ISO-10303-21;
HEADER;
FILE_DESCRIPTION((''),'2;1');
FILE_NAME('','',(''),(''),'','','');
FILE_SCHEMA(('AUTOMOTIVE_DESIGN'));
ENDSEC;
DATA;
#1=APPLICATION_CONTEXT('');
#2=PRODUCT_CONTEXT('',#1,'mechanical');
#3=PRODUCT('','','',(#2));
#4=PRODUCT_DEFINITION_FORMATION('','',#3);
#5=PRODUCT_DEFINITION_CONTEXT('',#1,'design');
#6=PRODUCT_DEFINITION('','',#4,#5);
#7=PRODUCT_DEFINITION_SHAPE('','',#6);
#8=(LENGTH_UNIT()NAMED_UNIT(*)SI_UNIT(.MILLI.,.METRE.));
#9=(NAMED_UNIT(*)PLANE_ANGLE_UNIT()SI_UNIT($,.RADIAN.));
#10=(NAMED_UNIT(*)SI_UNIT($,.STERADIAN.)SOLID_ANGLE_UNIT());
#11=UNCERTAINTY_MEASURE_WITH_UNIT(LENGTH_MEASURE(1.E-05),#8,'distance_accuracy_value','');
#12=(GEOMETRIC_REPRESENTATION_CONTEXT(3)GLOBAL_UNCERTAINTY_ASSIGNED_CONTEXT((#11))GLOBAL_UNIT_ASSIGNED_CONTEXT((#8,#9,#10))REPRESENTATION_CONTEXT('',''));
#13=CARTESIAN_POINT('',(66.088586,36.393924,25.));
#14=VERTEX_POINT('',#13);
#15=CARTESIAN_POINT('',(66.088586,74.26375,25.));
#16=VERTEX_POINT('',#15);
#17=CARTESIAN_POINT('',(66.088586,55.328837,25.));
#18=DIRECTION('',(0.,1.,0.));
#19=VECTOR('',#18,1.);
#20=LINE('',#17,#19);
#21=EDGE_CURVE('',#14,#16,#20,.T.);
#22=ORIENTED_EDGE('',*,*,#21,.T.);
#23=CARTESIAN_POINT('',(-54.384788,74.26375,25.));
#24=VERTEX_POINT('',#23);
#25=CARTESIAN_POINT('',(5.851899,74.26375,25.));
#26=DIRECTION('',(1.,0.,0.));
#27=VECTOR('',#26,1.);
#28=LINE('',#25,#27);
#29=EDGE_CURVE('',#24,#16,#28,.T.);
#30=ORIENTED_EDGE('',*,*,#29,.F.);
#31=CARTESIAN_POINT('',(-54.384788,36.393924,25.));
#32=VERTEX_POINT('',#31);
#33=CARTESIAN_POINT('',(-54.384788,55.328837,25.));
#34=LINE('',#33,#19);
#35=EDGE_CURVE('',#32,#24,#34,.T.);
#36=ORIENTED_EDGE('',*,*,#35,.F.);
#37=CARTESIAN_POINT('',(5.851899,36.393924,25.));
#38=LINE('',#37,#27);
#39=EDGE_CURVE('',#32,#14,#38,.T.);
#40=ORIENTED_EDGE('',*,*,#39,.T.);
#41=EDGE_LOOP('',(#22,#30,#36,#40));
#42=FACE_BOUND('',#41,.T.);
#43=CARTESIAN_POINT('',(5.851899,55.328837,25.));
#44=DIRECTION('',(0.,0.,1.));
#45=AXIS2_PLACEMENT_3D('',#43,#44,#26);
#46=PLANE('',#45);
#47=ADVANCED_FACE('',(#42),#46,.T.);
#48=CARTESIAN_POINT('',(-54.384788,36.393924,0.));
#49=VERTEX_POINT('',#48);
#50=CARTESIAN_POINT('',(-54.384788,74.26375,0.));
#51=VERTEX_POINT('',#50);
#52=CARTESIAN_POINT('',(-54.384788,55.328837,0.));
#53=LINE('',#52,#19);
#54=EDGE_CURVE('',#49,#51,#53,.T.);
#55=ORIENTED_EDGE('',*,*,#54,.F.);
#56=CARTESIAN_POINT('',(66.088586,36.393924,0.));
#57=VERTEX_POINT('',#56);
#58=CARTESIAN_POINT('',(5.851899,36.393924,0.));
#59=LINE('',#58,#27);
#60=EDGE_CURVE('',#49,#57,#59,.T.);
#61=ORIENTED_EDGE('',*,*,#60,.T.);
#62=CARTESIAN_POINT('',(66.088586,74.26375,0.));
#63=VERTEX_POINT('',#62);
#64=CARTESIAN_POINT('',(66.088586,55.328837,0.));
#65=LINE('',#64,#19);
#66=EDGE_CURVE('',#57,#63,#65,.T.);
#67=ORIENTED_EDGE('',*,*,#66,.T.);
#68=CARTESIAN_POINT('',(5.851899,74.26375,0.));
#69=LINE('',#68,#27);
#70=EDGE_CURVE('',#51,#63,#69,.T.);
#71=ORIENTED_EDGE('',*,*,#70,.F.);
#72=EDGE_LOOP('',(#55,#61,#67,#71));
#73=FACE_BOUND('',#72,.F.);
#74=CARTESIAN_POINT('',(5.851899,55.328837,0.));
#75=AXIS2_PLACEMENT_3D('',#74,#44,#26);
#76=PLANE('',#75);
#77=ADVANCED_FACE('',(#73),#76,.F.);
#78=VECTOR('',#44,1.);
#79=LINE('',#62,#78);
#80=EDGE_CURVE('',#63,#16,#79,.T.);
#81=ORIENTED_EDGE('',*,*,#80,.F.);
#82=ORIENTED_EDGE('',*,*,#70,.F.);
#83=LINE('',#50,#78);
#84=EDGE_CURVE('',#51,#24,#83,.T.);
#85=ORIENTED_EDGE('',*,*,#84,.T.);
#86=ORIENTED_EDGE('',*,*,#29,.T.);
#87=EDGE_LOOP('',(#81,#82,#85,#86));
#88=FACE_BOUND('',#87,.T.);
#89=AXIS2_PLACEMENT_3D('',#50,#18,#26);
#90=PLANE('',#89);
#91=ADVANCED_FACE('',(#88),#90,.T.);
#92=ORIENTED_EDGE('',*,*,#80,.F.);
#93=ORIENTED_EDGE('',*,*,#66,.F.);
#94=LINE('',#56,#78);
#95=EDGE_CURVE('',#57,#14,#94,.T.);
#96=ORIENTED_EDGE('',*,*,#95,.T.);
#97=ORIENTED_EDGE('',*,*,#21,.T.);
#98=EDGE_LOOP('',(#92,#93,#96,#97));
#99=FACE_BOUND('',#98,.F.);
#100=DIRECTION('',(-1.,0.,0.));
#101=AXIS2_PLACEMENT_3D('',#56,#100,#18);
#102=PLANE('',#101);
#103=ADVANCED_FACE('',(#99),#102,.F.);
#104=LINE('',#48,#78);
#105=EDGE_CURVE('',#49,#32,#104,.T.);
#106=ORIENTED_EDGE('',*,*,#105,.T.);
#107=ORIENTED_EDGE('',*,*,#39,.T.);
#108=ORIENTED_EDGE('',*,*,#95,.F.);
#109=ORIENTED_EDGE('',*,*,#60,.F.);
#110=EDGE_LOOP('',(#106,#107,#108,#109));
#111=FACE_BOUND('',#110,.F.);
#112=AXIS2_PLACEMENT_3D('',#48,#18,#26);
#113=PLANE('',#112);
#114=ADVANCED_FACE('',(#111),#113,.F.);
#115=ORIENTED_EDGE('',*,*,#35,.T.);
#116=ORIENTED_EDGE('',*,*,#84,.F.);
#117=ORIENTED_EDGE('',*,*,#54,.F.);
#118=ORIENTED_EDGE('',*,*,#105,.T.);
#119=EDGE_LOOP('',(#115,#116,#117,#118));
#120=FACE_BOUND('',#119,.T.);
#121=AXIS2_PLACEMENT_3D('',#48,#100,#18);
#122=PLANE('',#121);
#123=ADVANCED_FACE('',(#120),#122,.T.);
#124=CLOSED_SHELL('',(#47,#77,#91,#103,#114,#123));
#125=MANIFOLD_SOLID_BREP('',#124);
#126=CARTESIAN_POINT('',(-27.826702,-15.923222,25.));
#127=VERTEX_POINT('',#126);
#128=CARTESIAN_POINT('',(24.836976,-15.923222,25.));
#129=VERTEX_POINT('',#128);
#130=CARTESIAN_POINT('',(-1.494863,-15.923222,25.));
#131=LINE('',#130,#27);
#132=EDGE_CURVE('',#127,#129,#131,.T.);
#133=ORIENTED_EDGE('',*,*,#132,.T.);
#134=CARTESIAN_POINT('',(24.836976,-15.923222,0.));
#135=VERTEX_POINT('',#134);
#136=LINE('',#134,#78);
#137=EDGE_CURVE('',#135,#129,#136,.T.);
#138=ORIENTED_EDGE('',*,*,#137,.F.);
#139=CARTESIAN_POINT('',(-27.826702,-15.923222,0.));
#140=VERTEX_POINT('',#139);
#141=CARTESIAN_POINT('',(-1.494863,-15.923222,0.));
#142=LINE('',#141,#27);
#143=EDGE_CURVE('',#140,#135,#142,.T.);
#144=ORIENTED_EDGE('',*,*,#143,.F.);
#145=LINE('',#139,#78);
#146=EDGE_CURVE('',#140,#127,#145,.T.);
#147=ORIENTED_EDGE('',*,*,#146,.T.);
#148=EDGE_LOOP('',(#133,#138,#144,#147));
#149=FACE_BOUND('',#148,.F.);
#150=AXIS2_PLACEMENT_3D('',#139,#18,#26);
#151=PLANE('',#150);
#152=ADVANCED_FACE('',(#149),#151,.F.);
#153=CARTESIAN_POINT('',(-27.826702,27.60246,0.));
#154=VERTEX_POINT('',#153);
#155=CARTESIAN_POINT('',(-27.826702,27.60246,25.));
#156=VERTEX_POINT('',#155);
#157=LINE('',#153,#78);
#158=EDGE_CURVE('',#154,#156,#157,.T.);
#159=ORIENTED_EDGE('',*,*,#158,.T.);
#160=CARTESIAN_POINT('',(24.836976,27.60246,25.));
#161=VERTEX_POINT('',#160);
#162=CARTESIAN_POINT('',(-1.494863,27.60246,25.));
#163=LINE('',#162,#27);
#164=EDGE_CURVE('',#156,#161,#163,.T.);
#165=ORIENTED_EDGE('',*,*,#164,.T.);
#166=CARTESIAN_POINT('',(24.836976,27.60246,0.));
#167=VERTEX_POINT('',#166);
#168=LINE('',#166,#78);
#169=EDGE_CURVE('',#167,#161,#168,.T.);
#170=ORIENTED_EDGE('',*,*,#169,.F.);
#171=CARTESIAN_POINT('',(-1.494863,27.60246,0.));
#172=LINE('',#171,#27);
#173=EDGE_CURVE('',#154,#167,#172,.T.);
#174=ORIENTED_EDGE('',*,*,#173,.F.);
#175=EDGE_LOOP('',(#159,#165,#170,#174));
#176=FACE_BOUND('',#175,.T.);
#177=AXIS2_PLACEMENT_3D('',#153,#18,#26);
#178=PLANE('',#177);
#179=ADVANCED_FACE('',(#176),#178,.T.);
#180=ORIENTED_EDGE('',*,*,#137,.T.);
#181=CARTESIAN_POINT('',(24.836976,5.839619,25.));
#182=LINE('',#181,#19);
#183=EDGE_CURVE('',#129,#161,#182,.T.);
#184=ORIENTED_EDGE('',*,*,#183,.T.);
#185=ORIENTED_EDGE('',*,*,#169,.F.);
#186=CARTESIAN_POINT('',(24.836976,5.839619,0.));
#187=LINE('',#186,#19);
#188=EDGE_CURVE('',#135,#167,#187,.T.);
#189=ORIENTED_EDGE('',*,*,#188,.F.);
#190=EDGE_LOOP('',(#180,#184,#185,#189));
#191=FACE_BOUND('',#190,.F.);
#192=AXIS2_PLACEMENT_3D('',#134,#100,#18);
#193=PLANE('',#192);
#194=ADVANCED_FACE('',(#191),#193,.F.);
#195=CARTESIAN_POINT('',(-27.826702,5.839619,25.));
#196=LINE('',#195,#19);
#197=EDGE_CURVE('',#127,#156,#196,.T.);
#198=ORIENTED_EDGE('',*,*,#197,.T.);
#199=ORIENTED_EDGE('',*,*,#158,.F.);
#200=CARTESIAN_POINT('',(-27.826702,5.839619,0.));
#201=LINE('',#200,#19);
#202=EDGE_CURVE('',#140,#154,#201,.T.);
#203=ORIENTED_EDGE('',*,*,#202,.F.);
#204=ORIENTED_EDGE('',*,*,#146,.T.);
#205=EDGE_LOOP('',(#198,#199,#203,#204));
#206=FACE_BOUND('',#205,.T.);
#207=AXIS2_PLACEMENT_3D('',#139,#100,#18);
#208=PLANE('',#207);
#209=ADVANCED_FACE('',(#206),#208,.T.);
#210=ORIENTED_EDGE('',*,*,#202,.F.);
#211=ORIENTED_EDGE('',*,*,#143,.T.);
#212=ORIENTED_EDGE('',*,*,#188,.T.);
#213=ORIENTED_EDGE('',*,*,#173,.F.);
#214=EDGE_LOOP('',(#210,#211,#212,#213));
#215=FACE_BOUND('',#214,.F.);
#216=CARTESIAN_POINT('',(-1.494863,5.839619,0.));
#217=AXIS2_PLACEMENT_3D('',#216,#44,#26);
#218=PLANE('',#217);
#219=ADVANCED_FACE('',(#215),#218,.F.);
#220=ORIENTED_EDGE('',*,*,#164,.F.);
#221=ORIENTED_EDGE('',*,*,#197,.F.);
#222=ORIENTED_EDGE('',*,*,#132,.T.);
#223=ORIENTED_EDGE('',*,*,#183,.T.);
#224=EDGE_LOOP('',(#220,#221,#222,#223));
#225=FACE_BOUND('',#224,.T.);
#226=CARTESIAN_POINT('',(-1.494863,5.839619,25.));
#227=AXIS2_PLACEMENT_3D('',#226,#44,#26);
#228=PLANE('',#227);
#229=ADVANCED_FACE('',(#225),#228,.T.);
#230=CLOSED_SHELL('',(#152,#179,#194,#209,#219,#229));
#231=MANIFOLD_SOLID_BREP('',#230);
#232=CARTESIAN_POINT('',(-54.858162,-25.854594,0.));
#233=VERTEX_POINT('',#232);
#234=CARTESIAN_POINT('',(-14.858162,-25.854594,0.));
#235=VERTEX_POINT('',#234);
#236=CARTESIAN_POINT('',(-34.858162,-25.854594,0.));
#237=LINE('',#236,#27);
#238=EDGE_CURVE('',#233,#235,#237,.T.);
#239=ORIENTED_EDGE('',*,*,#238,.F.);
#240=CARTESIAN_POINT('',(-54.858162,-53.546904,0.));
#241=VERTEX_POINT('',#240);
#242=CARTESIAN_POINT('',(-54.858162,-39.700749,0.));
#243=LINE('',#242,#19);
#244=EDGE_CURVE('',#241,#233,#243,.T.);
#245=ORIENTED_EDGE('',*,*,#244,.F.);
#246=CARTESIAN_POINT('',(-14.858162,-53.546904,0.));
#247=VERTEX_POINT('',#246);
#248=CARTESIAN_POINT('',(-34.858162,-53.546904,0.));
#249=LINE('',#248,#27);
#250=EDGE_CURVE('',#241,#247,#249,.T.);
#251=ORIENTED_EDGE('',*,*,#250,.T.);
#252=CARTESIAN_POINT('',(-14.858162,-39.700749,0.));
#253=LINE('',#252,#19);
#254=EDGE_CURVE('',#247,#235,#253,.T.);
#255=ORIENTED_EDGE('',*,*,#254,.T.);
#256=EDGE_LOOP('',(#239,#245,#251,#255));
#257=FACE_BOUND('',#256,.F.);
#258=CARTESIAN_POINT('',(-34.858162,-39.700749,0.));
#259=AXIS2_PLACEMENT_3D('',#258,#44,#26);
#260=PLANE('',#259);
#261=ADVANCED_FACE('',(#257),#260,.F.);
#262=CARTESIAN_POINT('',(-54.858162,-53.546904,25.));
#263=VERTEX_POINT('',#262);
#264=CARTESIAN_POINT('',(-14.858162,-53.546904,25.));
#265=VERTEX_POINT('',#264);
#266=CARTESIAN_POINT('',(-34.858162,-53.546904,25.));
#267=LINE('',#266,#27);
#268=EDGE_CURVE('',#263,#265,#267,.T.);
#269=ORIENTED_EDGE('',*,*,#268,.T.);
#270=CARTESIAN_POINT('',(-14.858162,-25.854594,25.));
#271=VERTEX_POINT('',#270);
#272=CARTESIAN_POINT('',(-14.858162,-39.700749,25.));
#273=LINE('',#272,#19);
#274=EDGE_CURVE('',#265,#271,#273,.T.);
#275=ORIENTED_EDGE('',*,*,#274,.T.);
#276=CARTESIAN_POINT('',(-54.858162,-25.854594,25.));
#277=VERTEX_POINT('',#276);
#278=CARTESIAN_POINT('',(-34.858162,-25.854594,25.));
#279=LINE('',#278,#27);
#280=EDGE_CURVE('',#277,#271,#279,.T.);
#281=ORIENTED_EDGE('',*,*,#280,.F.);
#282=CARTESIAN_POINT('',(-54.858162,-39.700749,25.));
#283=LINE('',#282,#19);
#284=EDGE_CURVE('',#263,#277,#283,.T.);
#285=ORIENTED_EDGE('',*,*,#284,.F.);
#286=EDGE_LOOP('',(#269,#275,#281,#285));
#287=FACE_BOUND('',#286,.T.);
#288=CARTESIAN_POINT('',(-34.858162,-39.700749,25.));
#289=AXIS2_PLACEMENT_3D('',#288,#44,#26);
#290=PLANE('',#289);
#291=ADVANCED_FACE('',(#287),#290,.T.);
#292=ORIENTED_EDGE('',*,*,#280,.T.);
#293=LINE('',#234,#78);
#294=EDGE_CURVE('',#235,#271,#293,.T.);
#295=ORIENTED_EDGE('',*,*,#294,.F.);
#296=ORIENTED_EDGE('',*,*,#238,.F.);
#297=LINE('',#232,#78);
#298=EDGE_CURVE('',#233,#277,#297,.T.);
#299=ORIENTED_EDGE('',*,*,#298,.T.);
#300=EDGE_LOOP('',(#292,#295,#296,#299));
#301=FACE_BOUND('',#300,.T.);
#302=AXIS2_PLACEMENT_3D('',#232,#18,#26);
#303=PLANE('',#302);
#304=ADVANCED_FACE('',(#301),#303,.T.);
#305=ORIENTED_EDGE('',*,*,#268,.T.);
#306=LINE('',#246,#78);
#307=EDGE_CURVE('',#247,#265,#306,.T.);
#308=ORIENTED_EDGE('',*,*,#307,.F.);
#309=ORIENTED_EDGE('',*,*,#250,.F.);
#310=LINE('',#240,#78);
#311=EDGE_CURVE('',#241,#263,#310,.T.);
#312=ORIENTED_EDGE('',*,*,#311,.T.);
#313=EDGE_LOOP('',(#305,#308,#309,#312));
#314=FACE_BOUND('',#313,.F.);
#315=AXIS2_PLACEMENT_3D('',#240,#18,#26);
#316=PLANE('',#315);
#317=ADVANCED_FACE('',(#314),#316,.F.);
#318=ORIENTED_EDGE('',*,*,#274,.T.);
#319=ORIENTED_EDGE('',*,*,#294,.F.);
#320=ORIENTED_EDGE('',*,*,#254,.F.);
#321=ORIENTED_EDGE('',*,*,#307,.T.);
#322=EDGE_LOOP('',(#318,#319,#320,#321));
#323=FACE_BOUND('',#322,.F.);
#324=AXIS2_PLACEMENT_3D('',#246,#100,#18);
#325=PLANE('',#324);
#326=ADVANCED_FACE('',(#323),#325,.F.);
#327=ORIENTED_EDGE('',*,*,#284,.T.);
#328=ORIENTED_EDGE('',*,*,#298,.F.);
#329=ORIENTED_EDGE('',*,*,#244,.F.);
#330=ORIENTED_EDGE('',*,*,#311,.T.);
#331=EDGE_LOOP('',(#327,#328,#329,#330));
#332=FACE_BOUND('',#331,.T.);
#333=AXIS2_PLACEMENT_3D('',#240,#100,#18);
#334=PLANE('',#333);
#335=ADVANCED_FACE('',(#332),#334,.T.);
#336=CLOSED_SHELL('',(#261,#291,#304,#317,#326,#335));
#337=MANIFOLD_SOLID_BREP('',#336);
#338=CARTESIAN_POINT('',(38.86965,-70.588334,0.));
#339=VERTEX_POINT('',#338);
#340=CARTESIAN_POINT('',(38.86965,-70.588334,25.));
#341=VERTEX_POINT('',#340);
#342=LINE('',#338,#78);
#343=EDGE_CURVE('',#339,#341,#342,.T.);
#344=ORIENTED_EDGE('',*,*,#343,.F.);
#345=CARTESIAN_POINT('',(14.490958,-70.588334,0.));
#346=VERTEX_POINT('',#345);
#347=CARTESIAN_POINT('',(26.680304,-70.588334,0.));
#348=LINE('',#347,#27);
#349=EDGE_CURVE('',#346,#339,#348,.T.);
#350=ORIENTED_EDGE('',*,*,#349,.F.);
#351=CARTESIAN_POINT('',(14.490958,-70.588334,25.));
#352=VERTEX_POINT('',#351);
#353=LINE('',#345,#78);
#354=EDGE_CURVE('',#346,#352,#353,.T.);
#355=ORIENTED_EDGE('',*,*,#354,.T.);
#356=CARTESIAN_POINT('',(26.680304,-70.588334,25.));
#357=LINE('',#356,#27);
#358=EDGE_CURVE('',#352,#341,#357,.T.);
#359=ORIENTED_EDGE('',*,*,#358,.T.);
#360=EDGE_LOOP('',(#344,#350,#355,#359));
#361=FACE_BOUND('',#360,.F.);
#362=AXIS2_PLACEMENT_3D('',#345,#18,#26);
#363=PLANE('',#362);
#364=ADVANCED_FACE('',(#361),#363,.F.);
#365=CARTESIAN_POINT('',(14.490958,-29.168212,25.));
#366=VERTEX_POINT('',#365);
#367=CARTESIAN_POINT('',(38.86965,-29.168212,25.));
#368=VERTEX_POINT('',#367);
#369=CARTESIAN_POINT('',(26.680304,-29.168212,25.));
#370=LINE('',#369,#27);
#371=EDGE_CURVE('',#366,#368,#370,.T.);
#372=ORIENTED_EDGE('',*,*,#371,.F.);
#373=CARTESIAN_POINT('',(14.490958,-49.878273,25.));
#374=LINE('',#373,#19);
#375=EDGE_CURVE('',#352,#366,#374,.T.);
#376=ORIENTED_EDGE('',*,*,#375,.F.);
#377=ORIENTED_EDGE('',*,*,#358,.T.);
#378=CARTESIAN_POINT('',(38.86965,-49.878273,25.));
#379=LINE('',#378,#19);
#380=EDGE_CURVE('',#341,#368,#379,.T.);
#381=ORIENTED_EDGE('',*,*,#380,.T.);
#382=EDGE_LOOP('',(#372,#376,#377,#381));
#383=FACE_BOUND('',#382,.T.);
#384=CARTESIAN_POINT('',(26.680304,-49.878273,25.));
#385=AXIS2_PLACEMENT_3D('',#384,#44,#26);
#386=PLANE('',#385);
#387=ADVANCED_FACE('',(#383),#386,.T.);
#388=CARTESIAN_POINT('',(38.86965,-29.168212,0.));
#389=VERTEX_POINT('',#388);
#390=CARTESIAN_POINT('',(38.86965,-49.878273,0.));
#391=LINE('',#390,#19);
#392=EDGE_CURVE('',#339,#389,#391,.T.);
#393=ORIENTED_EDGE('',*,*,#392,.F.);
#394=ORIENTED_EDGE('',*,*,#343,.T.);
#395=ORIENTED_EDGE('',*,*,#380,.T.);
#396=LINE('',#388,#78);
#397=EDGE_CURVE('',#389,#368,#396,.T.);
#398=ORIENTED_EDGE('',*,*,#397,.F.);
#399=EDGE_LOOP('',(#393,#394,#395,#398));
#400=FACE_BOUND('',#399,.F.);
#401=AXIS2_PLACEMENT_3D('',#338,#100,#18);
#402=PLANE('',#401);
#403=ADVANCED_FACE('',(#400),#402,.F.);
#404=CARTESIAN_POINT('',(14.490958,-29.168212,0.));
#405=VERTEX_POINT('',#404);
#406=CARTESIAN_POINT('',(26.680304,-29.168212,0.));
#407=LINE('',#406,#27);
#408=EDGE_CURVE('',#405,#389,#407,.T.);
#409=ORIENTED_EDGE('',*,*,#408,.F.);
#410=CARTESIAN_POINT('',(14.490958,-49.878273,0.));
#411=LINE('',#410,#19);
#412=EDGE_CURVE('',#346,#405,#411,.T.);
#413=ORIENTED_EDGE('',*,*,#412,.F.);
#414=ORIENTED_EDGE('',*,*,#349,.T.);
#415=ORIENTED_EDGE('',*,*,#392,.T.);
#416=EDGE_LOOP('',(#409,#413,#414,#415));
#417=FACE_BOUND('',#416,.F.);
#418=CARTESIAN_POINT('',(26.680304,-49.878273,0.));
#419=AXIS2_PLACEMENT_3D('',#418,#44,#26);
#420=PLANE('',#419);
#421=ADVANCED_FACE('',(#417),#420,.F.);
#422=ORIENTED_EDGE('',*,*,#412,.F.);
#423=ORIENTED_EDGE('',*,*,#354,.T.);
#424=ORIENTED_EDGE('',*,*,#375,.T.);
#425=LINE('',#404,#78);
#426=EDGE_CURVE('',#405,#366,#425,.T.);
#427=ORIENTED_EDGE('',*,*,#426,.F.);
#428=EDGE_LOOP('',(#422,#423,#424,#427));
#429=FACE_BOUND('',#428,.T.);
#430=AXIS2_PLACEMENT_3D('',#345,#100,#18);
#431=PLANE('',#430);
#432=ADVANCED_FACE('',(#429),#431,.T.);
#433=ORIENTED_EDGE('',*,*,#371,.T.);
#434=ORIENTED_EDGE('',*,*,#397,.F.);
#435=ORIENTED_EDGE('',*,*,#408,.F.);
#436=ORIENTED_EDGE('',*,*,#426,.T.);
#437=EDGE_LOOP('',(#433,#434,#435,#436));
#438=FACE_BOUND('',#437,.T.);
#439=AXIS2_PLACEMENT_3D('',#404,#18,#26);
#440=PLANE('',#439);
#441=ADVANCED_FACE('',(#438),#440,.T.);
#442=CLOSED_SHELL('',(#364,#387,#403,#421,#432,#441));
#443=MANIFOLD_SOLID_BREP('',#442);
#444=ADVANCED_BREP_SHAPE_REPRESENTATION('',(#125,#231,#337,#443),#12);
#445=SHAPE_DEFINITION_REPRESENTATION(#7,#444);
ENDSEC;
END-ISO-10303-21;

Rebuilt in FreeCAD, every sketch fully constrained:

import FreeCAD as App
import Part
import Sketcher
from FreeCAD import Vector


def add_polygon(sketch, points):
    """Adds a closed chain of lines whose ends are joined by coincident constraints."""
    first, n = sketch.GeometryCount, len(points)
    for a, b in zip(points, points[1:] + points[:1]):
        sketch.addGeometry(Part.LineSegment(App.Vector(*a, 0), App.Vector(*b, 0)), False)
    for i in range(n):
        sketch.addConstraint(Sketcher.Constraint("Coincident", first + i, 2, first + (i + 1) % n, 1))

doc = App.newDocument("Part")
body = doc.addObject("PartDesign::Body", "Body")
body.AllowCompound = True

# Sketch on XY plane
sketch1 = body.newObject("Sketcher::SketchObject", "Sketch")
sketch1.AttachmentSupport = (doc.getObject("XY_Plane"), [""])
sketch1.MapMode = "FlatFace"
add_polygon(sketch1, [(-28, 28), (-28, -16), (25, -16), (25, 28)])  # lines 0-3
add_polygon(sketch1, [(-55, -26), (-55, -54), (-15, -54), (-15, -26)])  # lines 4-7
add_polygon(sketch1, [(-54, 74), (-54, 36), (66, 36), (66, 74)])  # lines 8-11
add_polygon(sketch1, [(14, -29), (14, -71), (39, -71), (39, -29)])  # lines 12-15
sketch1.addConstraint([
    Sketcher.Constraint("Vertical", 0),
    Sketcher.Constraint("Horizontal", 1),
    Sketcher.Constraint("Vertical", 2),
    Sketcher.Constraint("Horizontal", 3),
    Sketcher.Constraint("Vertical", 4),
    Sketcher.Constraint("Horizontal", 5),
    Sketcher.Constraint("Vertical", 6),
    Sketcher.Constraint("Horizontal", 7),
    Sketcher.Constraint("Vertical", 8),
    Sketcher.Constraint("Horizontal", 9),
    Sketcher.Constraint("Vertical", 10),
    Sketcher.Constraint("Horizontal", 11),
    Sketcher.Constraint("Vertical", 12),
    Sketcher.Constraint("Horizontal", 13),
    Sketcher.Constraint("Vertical", 14),
    Sketcher.Constraint("Horizontal", 15),
    Sketcher.Constraint("DistanceX", 5, 1, 5, 2, 40.0),
    Sketcher.Constraint("DistanceX", 1, 1, 1, 2, 52.663679),
    Sketcher.Constraint("DistanceY", 4, 2, 4, 1, 27.69231),
    Sketcher.Constraint("DistanceX", 9, 1, 9, 2, 120.473374),
    Sketcher.Constraint("DistanceX", 13, 1, 13, 2, 24.378693),
    Sketcher.Constraint("DistanceY", 0, 2, 0, 1, 43.525683),
    Sketcher.Constraint("DistanceY", 8, 2, 8, 1, 37.869826),
    Sketcher.Constraint("DistanceY", 12, 2, 12, 1, 41.420122),
    Sketcher.Constraint("DistanceY", -1, 1, 2, 2, 27.60246),
    Sketcher.Constraint("DistanceY", -1, 1, 10, 2, 74.26375),
    Sketcher.Constraint("DistanceX", -1, 1, 13, 2, 38.86965),
    Sketcher.Constraint("DistanceX", 4, 2, 0, 2, 27.03146),
    Sketcher.Constraint("DistanceY", 4, 2, 0, 2, 37.623681),
    Sketcher.Constraint("DistanceX", 2, 2, 9, 2, 41.25161),
    Sketcher.Constraint("DistanceX", 5, 2, 12, 2, 29.34912),
    Sketcher.Constraint("DistanceY", 12, 2, 5, 2, 17.04143),
])
pad1 = body.newObject("PartDesign::Pad", "Pad")
pad1.Profile = sketch1
pad1.Length = 25

doc.recompute()
